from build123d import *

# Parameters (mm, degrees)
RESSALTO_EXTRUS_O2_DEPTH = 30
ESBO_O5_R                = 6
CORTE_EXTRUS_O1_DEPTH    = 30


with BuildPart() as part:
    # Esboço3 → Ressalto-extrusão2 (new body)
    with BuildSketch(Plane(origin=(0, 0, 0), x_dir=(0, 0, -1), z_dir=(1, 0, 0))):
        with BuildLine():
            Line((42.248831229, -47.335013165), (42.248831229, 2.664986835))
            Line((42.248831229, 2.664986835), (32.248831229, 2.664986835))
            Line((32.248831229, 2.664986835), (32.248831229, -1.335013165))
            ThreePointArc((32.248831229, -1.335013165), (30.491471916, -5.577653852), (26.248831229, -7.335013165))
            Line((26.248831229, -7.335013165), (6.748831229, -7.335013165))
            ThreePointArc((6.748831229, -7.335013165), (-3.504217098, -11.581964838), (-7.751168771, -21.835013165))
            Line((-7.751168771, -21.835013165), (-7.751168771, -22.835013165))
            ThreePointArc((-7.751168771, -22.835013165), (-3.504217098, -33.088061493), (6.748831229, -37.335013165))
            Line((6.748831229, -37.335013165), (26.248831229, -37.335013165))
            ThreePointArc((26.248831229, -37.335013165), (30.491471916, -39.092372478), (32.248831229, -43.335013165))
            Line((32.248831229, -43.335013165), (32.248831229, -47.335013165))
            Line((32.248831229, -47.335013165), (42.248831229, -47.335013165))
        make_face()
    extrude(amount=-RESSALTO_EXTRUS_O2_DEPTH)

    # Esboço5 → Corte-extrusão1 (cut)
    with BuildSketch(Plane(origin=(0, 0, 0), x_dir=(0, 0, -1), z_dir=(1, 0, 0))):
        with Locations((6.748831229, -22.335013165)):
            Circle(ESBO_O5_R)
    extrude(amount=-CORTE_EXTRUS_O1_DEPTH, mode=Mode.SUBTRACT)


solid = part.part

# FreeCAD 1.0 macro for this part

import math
import FreeCAD as App
import Part
import Sketcher
from FreeCAD import Vector

doc = App.newDocument("Part")
params = doc.addObject("Spreadsheet::Sheet", "Params")
for row, (alias, value) in enumerate([
    ("sketch1_radius", "6 mm"),
    ("sketch1_radius2", "14.5 mm"),
    ("sketch1_width", "50 mm"),
    ("sketch1_width2", "4 mm"),
    ("sketch1_height", "10 mm"),
    ("pad1_length", "30 mm"),
    ("sketch2_diameter", "12 mm"),
    ("pocket1_length", "30 mm"),
], start=1):
    params.set(f"A{row}", alias)
    params.set(f"B{row}", "=" + value)
    params.setAlias(f"B{row}", alias)

body = doc.addObject("PartDesign::Body", "Body")

sketch1 = body.newObject("Sketcher::SketchObject", "Sketch")
sketch1.AttachmentSupport = (doc.getObject("YZ_Plane"), [""])
sketch1.MapMode = "FlatFace"
sketch1.addGeometry(Part.LineSegment(Vector(-47.335013, -42.248831, 0), Vector(2.664987, -42.248831, 0)), False)
sketch1.addGeometry(Part.LineSegment(Vector(2.664987, -42.248831, 0), Vector(2.664987, -32.248831, 0)), False)
sketch1.addGeometry(Part.LineSegment(Vector(2.664987, -32.248831, 0), Vector(-1.335013, -32.248831, 0)), False)
sketch1.addGeometry(Part.ArcOfCircle(Part.Circle(Vector(-1.335013, -26.248831, 0), Vector(0, 0, 1), 6), math.radians(180), math.radians(270)), False)
sketch1.addGeometry(Part.LineSegment(Vector(-7.335013, -26.248831, 0), Vector(-7.335013, -6.748831, 0)), False)
sketch1.addGeometry(Part.ArcOfCircle(Part.Circle(Vector(-21.835013, -6.748831, 0), Vector(0, 0, 1), 14.5), math.radians(0), math.radians(90)), False)
sketch1.addGeometry(Part.LineSegment(Vector(-21.835013, 7.751169, 0), Vector(-22.835013, 7.751169, 0)), False)
sketch1.addGeometry(Part.ArcOfCircle(Part.Circle(Vector(-22.835013, -6.748831, 0), Vector(0, 0, 1), 14.5), math.radians(90), math.radians(180)), False)
sketch1.addGeometry(Part.LineSegment(Vector(-37.335013, -6.748831, 0), Vector(-37.335013, -26.248831, 0)), False)
sketch1.addGeometry(Part.ArcOfCircle(Part.Circle(Vector(-43.335013, -26.248831, 0), Vector(0, 0, 1), 6), math.radians(-90), math.radians(0)), False)
sketch1.addGeometry(Part.LineSegment(Vector(-43.335013, -32.248831, 0), Vector(-47.335013, -32.248831, 0)), False)
sketch1.addGeometry(Part.LineSegment(Vector(-47.335013, -32.248831, 0), Vector(-47.335013, -42.248831, 0)), False)
sketch1.addConstraint(Sketcher.Constraint("Coincident", 0, 2, 1, 1))
sketch1.addConstraint(Sketcher.Constraint("Coincident", 1, 2, 2, 1))
sketch1.addConstraint(Sketcher.Constraint("Tangent", 2, 2, 3, 2))
sketch1.addConstraint(Sketcher.Constraint("Tangent", 3, 1, 4, 1))
sketch1.addConstraint(Sketcher.Constraint("Tangent", 4, 2, 5, 1))
sketch1.addConstraint(Sketcher.Constraint("Tangent", 5, 2, 6, 1))
sketch1.addConstraint(Sketcher.Constraint("Tangent", 6, 2, 7, 1))
sketch1.addConstraint(Sketcher.Constraint("Tangent", 7, 2, 8, 1))
sketch1.addConstraint(Sketcher.Constraint("Tangent", 8, 2, 9, 2))
sketch1.addConstraint(Sketcher.Constraint("Tangent", 9, 1, 10, 1))
sketch1.addConstraint(Sketcher.Constraint("Coincident", 10, 2, 11, 1))
sketch1.addConstraint(Sketcher.Constraint("Coincident", 11, 2, 0, 1))
sketch1.addConstraint(Sketcher.Constraint("Horizontal", 0))
sketch1.addConstraint(Sketcher.Constraint("Vertical", 1))
sketch1.addConstraint(Sketcher.Constraint("Horizontal", 2))
sketch1.addConstraint(Sketcher.Constraint("Vertical", 4))
sketch1.addConstraint(Sketcher.Constraint("Horizontal", 6))
sketch1.addConstraint(Sketcher.Constraint("Vertical", 8))
sketch1.addConstraint(Sketcher.Constraint("Horizontal", 10))
sketch1.addConstraint(Sketcher.Constraint("Vertical", 11))
sketch1.addConstraint(Sketcher.Constraint("Equal", 5, 7))
sketch1.addConstraint(Sketcher.Constraint("Equal", 3, 9))
sketch1.addConstraint(Sketcher.Constraint("Horizontal", 3, 3, 9, 3))
sketch1.addConstraint(Sketcher.Constraint("Equal", 2, 10))
sketch1.addConstraint(Sketcher.Constraint("Radius", 3, 6.0))
sketch1.addConstraint(Sketcher.Constraint("Radius", 5, 14.5))
sketch1.addConstraint(Sketcher.Constraint("DistanceX", 0, 1, 0, 2, 50.0))
sketch1.addConstraint(Sketcher.Constraint("DistanceX", 2, 2, 2, 1, 4.0))
sketch1.addConstraint(Sketcher.Constraint("DistanceY", 1, 1, 1, 2, 10.0))
sketch1.addConstraint(Sketcher.Constraint("DistanceY", 4, 1, 4, 2, 19.5))
sketch1.addConstraint(Sketcher.Constraint("DistanceY", 3, 3, -1, 1, 26.248831))
sketch1.addConstraint(Sketcher.Constraint("DistanceX", 3, 3, -1, 1, 1.335013))
sketch1.setExpression("Constraints[24]", "Params.sketch1_radius")
sketch1.setExpression("Constraints[25]", "Params.sketch1_radius2")
sketch1.setExpression("Constraints[26]", "Params.sketch1_width")
sketch1.setExpression("Constraints[27]", "Params.sketch1_width2")
sketch1.setExpression("Constraints[28]", "Params.sketch1_height")
pad1 = body.newObject("PartDesign::Pad", "Pad")
pad1.Profile = sketch1
pad1.setExpression("Length", "Params.pad1_length")
pad1.Reversed = True

sketch2 = body.newObject("Sketcher::SketchObject", "Sketch001")
sketch2.AttachmentSupport = (doc.getObject("YZ_Plane"), [""])
sketch2.MapMode = "FlatFace"
sketch2.addGeometry(Part.Circle(Vector(-22.335013, -6.748831, 0), Vector(0, 0, 1), 6), False)
sketch2.addConstraint(Sketcher.Constraint("Diameter", 0, 12.0))
sketch2.addConstraint(Sketcher.Constraint("DistanceY", 0, 3, -1, 1, 6.748831))
sketch2.addConstraint(Sketcher.Constraint("DistanceX", 0, 3, -1, 1, 22.335013))
sketch2.setExpression("Constraints[0]", "Params.sketch2_diameter")
pocket1 = body.newObject("PartDesign::Pocket", "Pocket")
pocket1.Profile = sketch2
pocket1.setExpression("Length", "Params.pocket1_length")

doc.recompute()
